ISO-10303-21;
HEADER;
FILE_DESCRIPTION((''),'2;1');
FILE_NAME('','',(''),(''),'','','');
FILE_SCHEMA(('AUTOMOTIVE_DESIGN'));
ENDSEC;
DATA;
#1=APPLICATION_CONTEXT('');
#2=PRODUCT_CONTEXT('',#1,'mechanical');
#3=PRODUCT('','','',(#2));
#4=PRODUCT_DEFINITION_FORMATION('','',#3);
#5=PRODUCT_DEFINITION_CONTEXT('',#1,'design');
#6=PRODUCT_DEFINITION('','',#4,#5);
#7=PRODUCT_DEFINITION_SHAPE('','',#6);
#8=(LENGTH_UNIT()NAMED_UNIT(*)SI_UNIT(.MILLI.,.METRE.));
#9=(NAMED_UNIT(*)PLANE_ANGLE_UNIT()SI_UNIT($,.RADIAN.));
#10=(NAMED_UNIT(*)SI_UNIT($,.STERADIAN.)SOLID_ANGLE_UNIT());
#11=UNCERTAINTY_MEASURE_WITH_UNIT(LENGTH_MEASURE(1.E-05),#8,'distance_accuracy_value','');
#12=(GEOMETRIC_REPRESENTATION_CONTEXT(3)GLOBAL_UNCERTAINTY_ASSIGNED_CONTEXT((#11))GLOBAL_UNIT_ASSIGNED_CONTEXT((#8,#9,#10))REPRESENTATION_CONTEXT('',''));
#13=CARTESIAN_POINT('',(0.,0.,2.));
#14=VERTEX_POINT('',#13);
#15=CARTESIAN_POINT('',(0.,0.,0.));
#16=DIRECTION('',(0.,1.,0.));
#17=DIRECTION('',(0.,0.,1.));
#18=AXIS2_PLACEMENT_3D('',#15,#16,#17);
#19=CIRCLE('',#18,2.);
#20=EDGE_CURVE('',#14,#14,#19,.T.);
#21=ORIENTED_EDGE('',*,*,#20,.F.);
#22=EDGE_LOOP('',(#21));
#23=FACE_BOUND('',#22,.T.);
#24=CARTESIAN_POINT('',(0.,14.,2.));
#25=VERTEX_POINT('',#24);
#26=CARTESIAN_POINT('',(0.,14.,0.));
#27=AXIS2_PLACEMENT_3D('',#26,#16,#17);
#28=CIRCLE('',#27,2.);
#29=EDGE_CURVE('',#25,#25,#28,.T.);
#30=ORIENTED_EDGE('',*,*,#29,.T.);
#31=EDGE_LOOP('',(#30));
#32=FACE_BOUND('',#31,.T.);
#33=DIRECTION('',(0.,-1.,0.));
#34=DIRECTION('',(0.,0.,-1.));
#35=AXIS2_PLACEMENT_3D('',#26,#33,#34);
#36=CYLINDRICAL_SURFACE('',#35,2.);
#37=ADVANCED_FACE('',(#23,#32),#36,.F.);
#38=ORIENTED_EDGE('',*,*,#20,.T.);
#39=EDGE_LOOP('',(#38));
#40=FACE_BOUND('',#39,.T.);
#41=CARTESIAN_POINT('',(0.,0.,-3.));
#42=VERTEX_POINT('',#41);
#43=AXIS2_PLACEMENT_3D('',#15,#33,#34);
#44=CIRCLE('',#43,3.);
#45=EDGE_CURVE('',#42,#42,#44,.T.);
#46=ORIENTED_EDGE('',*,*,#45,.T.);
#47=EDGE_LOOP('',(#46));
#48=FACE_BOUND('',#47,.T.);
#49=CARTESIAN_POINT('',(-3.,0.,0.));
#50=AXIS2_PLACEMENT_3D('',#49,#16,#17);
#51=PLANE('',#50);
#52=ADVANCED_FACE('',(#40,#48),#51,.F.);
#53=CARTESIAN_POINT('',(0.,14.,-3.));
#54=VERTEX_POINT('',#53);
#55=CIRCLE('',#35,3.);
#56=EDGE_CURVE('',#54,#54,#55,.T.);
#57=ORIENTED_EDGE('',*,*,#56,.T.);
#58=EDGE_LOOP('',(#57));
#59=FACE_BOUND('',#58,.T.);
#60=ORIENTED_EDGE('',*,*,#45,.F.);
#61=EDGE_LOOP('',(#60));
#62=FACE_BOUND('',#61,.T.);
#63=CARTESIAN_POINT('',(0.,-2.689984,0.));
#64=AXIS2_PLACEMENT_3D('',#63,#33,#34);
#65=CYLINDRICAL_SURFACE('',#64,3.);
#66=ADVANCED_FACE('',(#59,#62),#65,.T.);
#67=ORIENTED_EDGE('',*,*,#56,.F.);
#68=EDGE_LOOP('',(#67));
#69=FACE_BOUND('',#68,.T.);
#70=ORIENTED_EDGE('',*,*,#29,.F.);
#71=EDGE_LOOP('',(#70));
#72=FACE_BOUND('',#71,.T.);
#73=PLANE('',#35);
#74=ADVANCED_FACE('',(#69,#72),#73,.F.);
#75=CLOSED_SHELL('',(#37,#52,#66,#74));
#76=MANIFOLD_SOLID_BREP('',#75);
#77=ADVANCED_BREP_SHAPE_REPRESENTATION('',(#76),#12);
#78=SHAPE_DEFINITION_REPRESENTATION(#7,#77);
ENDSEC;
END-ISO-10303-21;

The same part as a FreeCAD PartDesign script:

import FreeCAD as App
import Part
import Sketcher
from FreeCAD import Vector
Q = App.Units.Quantity

doc = App.newDocument("Part")
body = doc.addObject("PartDesign::Body", "Body")

# Sketch on XY plane
sketch1 = body.newObject("Sketcher::SketchObject", "Sketch")
sketch1.AttachmentSupport = (doc.getObject("XY_Plane"), [""])
sketch1.MapMode = "FlatFace"
sketch1.addGeometry([
    Part.LineSegment(Vector(-3, 14, 0), Vector(-3, 0, 0)),
    Part.LineSegment(Vector(-3, 0, 0), Vector(0, 0, 0)),
    Part.LineSegment(Vector(0, 0, 0), Vector(0, 14, 0)),
    Part.LineSegment(Vector(0, 14, 0), Vector(-3, 14, 0)),
], False)
sketch1.addConstraint([
    Sketcher.Constraint("Coincident", 0, 2, 1, 1),
    Sketcher.Constraint("Coincident", 1, 2, 2, 1),
    Sketcher.Constraint("Coincident", 2, 2, 3, 1),
    Sketcher.Constraint("Coincident", 3, 2, 0, 1),
    Sketcher.Constraint("Vertical", 0),
    Sketcher.Constraint("Horizontal", 1),
    Sketcher.Constraint("Vertical", 2),
    Sketcher.Constraint("Horizontal", 3),
    Sketcher.Constraint("Coincident", 1, 2, -1, 1),
    Sketcher.Constraint("DistanceX", 1, 1, 1, 2, Q("3 mm")),
    Sketcher.Constraint("DistanceY", 0, 2, 0, 1, Q("14 mm")),
])
revolution = body.newObject("PartDesign::Revolution", "Revolution")
revolution.Profile = sketch1
revolution.ReferenceAxis = (sketch1, ["V_Axis"])
revolution.Angle = 360

# Sketch on XZ plane
sketch2 = body.newObject("Sketcher::SketchObject", "Sketch001")
sketch2.AttachmentSupport = (doc.getObject("XZ_Plane"), [""])
sketch2.MapMode = "FlatFace"
sketch2.addGeometry(Part.Circle(Vector(0, 0, 0), Vector(0, 0, 1), 2), False)
sketch2.addConstraint([
    Sketcher.Constraint("Coincident", 0, 3, -1, 1),
    Sketcher.Constraint("Diameter", 0, Q("4 mm")),
])
pocket1 = body.newObject("PartDesign::Pocket", "Pocket")
pocket1.Profile = sketch2
pocket1.Type = "ThroughAll"

doc.recompute()
